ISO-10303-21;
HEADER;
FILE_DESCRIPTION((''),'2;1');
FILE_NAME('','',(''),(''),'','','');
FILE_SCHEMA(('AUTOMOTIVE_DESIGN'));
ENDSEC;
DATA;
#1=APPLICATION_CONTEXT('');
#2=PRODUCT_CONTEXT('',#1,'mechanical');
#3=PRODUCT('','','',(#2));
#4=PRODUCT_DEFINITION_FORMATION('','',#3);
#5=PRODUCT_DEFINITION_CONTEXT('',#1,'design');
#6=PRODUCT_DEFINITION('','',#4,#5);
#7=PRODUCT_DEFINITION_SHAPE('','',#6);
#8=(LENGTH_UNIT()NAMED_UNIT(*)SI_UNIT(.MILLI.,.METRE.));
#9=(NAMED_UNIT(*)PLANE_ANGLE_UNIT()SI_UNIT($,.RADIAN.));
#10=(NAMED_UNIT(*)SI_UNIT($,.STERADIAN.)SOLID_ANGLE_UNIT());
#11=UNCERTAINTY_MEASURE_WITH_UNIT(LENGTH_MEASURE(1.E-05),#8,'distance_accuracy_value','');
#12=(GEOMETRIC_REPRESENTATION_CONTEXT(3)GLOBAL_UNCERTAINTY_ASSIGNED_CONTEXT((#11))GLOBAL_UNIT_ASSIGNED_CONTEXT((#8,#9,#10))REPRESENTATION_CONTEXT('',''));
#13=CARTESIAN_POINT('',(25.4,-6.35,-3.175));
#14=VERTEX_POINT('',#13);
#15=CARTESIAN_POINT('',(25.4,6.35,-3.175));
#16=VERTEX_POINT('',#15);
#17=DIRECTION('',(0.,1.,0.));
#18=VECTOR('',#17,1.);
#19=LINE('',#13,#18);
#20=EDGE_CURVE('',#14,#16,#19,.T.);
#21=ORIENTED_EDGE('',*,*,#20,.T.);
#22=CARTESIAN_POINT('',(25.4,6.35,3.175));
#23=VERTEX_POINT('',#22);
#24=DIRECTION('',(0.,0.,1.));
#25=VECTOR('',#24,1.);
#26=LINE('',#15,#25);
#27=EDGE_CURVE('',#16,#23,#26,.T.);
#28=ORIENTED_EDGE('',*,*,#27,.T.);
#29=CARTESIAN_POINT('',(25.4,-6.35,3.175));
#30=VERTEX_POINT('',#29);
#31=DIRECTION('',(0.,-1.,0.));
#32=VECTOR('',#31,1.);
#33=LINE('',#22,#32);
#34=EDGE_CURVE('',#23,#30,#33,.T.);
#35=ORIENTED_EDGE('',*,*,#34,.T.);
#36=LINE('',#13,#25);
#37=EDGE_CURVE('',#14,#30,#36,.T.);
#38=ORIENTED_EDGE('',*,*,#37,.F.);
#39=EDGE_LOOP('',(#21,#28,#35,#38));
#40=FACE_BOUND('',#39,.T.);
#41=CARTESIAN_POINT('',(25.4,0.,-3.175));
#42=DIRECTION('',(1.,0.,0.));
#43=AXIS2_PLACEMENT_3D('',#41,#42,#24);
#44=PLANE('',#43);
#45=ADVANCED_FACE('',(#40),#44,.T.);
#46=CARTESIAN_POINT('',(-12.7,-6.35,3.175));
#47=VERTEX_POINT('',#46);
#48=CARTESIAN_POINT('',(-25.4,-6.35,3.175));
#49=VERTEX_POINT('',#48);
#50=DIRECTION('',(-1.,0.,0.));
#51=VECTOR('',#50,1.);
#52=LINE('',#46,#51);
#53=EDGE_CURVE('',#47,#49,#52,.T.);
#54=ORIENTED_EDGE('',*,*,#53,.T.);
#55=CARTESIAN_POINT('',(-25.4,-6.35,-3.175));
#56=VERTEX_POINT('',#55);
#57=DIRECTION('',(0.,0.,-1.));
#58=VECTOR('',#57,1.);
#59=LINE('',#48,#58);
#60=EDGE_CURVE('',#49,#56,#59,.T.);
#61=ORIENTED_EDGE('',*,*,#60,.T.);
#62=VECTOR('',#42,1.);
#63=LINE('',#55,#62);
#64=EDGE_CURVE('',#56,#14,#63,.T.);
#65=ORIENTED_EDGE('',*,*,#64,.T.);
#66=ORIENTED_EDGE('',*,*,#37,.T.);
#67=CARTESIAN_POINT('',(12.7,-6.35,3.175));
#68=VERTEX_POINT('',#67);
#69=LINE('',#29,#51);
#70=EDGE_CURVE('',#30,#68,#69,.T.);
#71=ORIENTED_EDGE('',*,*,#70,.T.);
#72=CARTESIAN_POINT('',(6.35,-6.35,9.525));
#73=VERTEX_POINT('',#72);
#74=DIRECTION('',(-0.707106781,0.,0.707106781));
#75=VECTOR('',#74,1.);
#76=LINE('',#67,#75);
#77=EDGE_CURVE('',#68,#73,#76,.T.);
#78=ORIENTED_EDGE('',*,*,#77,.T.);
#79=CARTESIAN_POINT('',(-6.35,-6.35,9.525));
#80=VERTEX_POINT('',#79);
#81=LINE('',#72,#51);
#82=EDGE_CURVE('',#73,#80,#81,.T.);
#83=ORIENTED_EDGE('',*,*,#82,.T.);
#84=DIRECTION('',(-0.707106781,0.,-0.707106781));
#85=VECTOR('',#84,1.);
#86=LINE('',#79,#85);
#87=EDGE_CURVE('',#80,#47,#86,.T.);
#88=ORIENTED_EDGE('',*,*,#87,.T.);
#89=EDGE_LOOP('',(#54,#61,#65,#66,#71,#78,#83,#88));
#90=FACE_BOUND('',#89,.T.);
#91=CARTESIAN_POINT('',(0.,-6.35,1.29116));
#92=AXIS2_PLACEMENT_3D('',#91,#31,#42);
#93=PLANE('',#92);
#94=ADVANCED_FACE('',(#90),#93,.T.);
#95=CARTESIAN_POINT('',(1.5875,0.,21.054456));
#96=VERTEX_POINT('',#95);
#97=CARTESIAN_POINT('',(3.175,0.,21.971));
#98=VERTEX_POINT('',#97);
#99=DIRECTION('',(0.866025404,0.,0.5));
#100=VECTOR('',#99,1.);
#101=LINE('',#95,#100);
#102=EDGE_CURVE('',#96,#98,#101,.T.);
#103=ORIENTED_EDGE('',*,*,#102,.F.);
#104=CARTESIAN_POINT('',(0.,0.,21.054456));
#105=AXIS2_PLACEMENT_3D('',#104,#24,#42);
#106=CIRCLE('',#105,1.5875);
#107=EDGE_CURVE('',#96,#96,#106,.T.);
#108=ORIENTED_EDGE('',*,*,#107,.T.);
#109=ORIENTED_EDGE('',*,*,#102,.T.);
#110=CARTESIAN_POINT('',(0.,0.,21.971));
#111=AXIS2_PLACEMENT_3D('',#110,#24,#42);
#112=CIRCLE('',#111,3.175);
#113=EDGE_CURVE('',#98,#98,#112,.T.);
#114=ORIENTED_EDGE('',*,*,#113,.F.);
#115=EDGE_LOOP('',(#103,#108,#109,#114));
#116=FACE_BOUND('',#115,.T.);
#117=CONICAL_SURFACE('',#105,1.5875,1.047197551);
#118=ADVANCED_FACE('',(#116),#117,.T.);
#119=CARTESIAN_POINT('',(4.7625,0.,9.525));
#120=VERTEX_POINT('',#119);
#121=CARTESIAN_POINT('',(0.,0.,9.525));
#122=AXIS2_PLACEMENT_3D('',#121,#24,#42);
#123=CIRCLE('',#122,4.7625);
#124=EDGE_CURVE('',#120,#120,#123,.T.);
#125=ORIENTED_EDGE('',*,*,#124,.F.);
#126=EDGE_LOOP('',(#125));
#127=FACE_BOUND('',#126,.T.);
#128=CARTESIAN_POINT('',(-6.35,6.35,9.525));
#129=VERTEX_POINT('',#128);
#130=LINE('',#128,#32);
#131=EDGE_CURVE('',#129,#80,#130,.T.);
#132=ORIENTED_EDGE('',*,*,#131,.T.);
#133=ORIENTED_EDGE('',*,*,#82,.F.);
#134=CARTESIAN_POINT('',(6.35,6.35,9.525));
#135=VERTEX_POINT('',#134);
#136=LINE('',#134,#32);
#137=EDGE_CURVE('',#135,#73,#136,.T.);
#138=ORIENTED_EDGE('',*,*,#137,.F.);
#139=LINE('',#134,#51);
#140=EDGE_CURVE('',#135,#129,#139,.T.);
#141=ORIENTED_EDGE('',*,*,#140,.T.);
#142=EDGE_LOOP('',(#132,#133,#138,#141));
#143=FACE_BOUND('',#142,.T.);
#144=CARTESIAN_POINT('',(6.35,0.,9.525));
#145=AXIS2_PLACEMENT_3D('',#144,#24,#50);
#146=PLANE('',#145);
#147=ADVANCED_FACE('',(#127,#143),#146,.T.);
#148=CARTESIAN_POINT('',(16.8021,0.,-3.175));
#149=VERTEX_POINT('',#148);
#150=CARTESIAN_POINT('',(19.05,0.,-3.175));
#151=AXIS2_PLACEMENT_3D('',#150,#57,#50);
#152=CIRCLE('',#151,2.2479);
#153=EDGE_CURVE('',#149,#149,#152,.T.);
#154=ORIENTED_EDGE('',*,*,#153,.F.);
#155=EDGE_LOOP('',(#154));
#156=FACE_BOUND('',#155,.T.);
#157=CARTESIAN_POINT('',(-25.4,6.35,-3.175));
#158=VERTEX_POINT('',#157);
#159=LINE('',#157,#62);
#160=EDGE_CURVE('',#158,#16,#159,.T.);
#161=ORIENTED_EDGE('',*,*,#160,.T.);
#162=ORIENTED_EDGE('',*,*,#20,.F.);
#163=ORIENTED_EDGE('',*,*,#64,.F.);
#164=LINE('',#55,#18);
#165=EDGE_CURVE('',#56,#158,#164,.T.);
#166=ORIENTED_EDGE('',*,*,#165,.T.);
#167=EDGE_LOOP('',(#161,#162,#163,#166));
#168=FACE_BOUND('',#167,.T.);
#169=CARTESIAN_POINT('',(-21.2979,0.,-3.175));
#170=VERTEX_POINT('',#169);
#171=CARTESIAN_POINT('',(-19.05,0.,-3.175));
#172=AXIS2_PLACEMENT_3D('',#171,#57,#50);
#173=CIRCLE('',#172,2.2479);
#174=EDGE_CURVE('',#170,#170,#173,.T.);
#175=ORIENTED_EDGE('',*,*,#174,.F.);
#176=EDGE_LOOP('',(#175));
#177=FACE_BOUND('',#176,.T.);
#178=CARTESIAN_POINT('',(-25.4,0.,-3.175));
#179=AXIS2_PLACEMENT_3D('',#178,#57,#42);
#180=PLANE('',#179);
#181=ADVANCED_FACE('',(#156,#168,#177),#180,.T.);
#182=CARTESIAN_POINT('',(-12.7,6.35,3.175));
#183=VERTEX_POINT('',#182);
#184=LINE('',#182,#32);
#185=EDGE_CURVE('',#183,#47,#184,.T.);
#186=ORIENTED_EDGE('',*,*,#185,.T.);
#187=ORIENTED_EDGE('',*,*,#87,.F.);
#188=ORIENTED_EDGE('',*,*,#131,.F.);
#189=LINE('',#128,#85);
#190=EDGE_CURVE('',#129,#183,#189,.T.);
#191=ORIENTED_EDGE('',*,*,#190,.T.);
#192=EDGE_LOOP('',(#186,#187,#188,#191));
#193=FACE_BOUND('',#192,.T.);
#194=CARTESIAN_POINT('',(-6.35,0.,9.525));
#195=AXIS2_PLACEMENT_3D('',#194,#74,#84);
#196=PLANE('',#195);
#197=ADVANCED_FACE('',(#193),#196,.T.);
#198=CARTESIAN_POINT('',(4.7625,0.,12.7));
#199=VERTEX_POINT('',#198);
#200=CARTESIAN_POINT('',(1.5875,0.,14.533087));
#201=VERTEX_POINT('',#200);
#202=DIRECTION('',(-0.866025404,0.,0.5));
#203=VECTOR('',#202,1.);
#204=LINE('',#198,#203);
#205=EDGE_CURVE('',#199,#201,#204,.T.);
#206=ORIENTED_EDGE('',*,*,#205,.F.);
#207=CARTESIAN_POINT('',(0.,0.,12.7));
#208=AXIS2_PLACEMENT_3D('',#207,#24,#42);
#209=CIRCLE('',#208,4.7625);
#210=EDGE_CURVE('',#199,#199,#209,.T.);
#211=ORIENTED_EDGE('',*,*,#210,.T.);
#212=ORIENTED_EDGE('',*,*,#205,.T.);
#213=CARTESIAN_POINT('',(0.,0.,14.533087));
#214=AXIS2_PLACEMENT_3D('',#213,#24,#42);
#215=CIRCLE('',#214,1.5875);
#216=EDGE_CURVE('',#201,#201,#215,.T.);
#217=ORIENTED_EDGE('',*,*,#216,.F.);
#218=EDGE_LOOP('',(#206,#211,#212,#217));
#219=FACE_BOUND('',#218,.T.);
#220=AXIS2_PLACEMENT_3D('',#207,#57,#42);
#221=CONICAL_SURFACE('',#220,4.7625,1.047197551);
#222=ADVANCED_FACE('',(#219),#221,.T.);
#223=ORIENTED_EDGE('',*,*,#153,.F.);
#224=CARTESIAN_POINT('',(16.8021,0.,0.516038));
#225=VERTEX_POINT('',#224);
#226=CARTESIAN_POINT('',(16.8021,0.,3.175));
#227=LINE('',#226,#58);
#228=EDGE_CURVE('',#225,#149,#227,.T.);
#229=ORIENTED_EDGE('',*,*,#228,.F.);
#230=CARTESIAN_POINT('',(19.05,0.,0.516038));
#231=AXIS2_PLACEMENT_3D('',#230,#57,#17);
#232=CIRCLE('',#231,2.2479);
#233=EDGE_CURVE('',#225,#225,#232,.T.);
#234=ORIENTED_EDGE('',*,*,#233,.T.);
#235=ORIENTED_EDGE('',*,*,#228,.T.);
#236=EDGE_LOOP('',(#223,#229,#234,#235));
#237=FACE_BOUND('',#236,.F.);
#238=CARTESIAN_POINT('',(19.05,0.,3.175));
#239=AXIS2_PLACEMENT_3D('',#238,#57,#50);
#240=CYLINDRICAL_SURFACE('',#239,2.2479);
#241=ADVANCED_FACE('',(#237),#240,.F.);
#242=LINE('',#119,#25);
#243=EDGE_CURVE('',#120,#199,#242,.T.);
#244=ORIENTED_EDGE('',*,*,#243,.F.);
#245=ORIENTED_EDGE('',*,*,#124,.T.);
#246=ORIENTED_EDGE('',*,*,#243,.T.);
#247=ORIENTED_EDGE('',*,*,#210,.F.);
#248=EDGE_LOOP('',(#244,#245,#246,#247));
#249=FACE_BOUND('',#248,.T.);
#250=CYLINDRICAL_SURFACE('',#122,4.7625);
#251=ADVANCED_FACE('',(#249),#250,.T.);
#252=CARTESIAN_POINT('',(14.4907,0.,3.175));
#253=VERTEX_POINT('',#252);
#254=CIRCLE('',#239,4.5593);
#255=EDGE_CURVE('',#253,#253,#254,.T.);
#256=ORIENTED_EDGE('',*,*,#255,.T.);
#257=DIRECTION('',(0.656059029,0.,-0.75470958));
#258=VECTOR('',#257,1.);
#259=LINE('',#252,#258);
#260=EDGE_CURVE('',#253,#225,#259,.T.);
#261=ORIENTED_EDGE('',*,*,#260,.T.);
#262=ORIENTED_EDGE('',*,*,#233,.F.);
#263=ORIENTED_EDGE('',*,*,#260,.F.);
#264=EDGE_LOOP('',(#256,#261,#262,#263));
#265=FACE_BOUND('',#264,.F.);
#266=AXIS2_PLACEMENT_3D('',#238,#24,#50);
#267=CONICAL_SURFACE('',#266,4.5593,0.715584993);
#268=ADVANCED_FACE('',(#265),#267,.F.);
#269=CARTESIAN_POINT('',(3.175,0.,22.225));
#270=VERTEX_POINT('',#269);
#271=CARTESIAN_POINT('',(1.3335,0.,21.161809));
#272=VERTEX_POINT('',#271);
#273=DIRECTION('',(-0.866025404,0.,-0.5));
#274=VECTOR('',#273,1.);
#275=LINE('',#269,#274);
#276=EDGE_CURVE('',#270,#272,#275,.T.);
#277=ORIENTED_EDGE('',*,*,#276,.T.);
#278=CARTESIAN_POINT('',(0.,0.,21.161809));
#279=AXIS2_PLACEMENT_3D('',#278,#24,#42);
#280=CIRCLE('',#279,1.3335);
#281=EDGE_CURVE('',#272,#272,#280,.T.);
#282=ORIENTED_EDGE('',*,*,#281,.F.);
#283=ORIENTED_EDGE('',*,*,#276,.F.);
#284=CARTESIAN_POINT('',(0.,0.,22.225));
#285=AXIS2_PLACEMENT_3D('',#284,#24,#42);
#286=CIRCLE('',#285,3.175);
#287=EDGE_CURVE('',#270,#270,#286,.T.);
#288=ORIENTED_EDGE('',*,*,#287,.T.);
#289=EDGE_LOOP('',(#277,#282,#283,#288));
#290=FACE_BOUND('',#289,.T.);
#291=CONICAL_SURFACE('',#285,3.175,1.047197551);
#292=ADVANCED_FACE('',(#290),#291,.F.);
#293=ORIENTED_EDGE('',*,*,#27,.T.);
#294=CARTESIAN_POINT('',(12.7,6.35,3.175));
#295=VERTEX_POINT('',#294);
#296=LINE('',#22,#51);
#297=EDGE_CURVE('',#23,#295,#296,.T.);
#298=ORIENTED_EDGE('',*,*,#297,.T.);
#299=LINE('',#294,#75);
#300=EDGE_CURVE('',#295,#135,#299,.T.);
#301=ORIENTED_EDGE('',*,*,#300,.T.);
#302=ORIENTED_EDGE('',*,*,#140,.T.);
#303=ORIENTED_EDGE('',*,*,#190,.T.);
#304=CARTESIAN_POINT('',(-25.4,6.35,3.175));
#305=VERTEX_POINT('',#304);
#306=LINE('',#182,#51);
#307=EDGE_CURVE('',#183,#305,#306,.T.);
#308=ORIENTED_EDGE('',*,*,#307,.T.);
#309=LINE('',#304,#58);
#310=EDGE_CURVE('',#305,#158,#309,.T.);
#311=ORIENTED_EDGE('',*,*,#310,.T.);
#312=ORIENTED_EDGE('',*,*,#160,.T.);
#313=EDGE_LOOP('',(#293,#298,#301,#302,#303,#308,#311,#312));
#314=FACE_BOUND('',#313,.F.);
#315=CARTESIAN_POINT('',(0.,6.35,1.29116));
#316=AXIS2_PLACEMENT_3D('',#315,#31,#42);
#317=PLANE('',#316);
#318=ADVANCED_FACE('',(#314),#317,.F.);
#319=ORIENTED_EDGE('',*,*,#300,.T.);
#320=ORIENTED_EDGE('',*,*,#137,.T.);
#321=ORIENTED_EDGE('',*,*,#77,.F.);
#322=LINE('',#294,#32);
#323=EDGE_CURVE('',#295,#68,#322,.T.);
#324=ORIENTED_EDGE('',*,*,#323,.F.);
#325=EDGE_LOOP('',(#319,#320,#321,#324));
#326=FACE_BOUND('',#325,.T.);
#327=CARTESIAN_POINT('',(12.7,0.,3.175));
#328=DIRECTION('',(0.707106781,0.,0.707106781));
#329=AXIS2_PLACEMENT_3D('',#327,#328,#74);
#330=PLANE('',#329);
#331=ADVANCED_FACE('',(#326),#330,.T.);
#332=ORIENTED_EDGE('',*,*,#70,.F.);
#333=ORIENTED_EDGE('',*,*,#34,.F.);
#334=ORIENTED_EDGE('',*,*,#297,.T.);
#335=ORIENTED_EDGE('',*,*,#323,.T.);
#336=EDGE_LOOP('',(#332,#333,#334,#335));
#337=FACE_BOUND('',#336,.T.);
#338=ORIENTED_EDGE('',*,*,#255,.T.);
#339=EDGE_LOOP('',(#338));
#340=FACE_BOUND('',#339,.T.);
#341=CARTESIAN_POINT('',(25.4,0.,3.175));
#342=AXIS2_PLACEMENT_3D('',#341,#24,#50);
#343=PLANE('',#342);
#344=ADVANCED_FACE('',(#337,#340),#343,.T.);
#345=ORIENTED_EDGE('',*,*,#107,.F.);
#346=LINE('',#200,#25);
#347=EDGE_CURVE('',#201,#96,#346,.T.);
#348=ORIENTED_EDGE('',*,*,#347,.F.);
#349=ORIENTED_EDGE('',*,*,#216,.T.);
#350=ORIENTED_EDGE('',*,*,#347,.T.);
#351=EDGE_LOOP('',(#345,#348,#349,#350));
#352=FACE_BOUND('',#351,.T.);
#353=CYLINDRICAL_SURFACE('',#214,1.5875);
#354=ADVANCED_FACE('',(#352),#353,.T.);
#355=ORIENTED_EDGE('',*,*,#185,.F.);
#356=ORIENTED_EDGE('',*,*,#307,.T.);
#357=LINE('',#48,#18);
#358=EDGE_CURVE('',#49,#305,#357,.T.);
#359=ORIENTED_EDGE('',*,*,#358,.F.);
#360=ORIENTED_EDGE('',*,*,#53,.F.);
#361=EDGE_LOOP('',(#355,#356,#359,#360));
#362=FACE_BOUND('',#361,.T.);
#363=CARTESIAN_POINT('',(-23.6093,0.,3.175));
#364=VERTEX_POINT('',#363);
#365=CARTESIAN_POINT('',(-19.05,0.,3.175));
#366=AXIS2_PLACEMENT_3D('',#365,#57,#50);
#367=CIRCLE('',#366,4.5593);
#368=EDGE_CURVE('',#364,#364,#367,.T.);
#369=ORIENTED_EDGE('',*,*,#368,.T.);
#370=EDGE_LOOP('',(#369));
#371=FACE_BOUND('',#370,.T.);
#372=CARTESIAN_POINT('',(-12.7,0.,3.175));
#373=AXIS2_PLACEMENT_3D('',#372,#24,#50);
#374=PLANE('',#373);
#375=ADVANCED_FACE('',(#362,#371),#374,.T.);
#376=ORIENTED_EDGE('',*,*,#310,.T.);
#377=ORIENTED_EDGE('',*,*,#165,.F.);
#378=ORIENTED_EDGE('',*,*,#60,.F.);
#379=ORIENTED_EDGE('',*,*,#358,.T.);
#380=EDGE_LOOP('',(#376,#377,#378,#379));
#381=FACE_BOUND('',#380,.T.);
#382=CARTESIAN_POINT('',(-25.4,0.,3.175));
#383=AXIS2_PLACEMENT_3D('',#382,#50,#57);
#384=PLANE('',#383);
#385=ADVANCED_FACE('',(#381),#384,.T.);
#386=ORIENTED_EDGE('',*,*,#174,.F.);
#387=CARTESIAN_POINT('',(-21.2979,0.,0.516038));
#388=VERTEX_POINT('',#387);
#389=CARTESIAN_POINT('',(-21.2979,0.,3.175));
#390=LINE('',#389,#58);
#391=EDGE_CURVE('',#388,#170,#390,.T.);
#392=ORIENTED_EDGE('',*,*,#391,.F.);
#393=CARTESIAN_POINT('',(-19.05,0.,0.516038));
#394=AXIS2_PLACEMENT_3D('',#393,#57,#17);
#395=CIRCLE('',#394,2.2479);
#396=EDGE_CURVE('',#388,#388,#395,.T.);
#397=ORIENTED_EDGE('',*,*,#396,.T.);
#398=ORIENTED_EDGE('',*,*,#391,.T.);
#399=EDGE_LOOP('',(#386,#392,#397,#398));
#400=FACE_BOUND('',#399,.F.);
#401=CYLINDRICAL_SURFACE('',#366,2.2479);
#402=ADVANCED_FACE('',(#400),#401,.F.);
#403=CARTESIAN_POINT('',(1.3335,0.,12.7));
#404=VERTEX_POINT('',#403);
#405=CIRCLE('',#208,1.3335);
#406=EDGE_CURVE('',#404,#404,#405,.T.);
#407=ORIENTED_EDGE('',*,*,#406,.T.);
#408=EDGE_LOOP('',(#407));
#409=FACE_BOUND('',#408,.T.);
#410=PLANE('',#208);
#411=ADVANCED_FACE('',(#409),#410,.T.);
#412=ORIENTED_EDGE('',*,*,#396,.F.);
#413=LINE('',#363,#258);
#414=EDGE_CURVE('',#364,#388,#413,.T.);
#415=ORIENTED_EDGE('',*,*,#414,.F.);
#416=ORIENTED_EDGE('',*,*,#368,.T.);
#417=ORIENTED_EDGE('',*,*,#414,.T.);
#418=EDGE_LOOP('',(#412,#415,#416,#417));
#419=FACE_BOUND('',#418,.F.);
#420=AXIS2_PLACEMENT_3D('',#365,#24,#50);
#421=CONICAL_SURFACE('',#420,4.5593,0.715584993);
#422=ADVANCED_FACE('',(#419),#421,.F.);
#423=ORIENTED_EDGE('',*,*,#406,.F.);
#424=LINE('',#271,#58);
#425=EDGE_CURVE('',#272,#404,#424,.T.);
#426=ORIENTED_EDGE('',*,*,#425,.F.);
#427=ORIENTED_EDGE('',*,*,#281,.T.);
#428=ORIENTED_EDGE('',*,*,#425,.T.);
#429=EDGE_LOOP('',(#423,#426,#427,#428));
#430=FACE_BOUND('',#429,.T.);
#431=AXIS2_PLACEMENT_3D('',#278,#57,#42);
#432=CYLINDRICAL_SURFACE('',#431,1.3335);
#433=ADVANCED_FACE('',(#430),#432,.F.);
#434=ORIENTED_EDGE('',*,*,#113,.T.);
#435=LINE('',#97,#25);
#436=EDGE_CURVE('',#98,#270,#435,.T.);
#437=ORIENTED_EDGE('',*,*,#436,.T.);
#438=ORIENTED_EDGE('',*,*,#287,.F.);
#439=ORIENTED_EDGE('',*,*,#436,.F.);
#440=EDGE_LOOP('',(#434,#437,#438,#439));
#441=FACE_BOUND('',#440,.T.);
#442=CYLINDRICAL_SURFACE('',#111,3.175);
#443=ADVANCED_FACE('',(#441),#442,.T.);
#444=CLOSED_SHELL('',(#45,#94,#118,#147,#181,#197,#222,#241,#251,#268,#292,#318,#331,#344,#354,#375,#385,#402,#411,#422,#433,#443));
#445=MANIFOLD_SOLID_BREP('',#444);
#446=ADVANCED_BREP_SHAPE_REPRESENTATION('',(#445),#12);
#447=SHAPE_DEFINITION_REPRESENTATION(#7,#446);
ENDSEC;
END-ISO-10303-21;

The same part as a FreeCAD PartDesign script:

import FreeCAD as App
import Part
import Sketcher

V = App.Vector
Q = App.Units.Quantity


def add_polygon(sketch, points):
    """Adds a closed chain of lines whose ends are joined by coincident constraints."""
    first, n = sketch.GeometryCount, len(points)
    for a, b in zip(points, points[1:] + points[:1]):
        sketch.addGeometry(Part.LineSegment(App.Vector(*a, 0), App.Vector(*b, 0)), False)
    for i in range(n):
        sketch.addConstraint(Sketcher.Constraint("Coincident", first + i, 2, first + (i + 1) % n, 1))

doc = App.newDocument("Part")
params = doc.addObject("Spreadsheet::Sheet", "Params")
for row, (alias, value) in enumerate([
    ("sketch1_width", "2 in"),
    ("sketch1_width2", "0.5 in"),
    ("sketch1_height", "0.25 in"),
    ("pad1_length", "0.5 in"),
    ("sketch2_diameter", "0.177 in"),
    ("hole_diameter", "0.177 in"),
    ("hole_csink_diameter", "0.359 in"),
    ("sketch3_height", "0.01 in"),
    ("sketch3_width", "0.1875 in"),
    ("sketch3_height2", "0.125 in"),
    ("revolution_angle", "360 deg"),
], start=1):
    params.set(f"A{row}", alias)
    params.set(f"B{row}", "=" + value)
    params.setAlias(f"B{row}", alias)

body = doc.addObject("PartDesign::Body", "Body")

# Sketch on XZ plane
sketch1 = body.newObject("Sketcher::SketchObject", "Sketch")
sketch1.AttachmentSupport = (doc.getObject("XZ_Plane"), [""])
sketch1.MapMode = "FlatFace"
add_polygon(sketch1, [(25, -3), (25, 3), (13, 3), (6, 10), (-6, 10), (-13, 3), (-25, 3), (-25, -3)])  # lines 0-7
sketch1.addConstraint(Sketcher.Constraint("Vertical", 0))
sketch1.addConstraint(Sketcher.Constraint("Horizontal", 1))
sketch1.addConstraint(Sketcher.Constraint("Horizontal", 3))
sketch1.addConstraint(Sketcher.Constraint("Horizontal", 5))
sketch1.addConstraint(Sketcher.Constraint("Vertical", 6))
sketch1.addConstraint(Sketcher.Constraint("Horizontal", 7))
sketch1.addConstraint(Sketcher.Constraint("Symmetric", 0, 2, 6, 2, -1, 1))
sketch1.addConstraint(Sketcher.Constraint("Symmetric", 1, 2, 4, 2, -2))
sketch1.addConstraint(Sketcher.Constraint("Perpendicular", 2, 4))
sketch1.addConstraint(Sketcher.Constraint("Equal", 1, 3))
sketch1.addConstraint(Sketcher.Constraint("Equal", 2, 4))
sketch1.addConstraint(Sketcher.Constraint("DistanceX", 7, 1, 7, 2, Q("2 in")))
sketch1.addConstraint(Sketcher.Constraint("DistanceX", 1, 2, 1, 1, Q("0.5 in")))
sketch1.addConstraint(Sketcher.Constraint("DistanceY", 0, 1, 0, 2, Q("0.25 in")))
sketch1.setExpression("Constraints[19]", "Params.sketch1_width")
sketch1.setExpression("Constraints[20]", "Params.sketch1_width2")
sketch1.setExpression("Constraints[21]", "Params.sketch1_height")
pad1 = body.newObject("PartDesign::Pad", "Pad")
pad1.Profile = sketch1
pad1.setExpression("Length", "Params.pad1_length")
pad1.Midplane = True

# Sketch on XY plane
sketch2 = body.newObject("Sketcher::SketchObject", "Sketch001")
sketch2.AttachmentSupport = (doc.getObject("XY_Plane"), [""])
sketch2.MapMode = "FlatFace"
sketch2.AttachmentOffset = App.Placement(V(0, 0, 0.125 * 25.4), App.Rotation())
sketch2.addGeometry(Part.Circle(V(-19.1, 0, 0), V(0, 0, 1), 2.2), False)
sketch2.addGeometry(Part.Circle(V(19.1, 0, 0), V(0, 0, 1), 2.2), False)
sketch2.addConstraint(Sketcher.Constraint("Equal", 0, 1))
sketch2.addConstraint(Sketcher.Constraint("Symmetric", 0, 3, 1, 3, -1, 1))
sketch2.addConstraint(Sketcher.Constraint("PointOnObject", 0, 3, -1))
sketch2.addConstraint(Sketcher.Constraint("Diameter", 0, Q("0.177 in")))
sketch2.addConstraint(Sketcher.Constraint("DistanceX", 0, 3, 1, 3, Q("1.5 in")))
sketch2.setExpression("Constraints[3]", "Params.sketch2_diameter")
doc.recompute()
hole = body.newObject("PartDesign::Hole", "Hole")
hole.Profile = sketch2
hole.ThreadType = "None"
hole.setExpression("Diameter", "Params.hole_diameter")
hole.DepthType = "ThroughAll"
hole.HoleCutType = "Countersink"
hole.setExpression("HoleCutDiameter", "Params.hole_csink_diameter")
hole.HoleCutCountersinkAngle = 82

# Sketch on XZ plane
sketch3 = body.newObject("Sketcher::SketchObject", "Sketch002")
sketch3.AttachmentSupport = (doc.getObject("XZ_Plane"), [""])
sketch3.MapMode = "FlatFace"
add_polygon(sketch3, [(0, 12.7), (0, 9.53), (4.76, 9.53), (4.76, 12.7), (1.59, 14.53), (1.59, 21.05), (3.17, 21.97), (3.17, 22.23), (1.33, 21.16), (1.33, 12.7)])  # lines 0-9
sketch3.addConstraint(Sketcher.Constraint("Vertical", 0))
sketch3.addConstraint(Sketcher.Constraint("Horizontal", 1))
sketch3.addConstraint(Sketcher.Constraint("Vertical", 2))
sketch3.addConstraint(Sketcher.Constraint("Vertical", 4))
sketch3.addConstraint(Sketcher.Constraint("Vertical", 6))
sketch3.addConstraint(Sketcher.Constraint("Vertical", 8))
sketch3.addConstraint(Sketcher.Constraint("Horizontal", 9))
sketch3.addConstraint(Sketcher.Constraint("PointOnObject", 0, 2, -2))
sketch3.addConstraint(Sketcher.Constraint("Parallel", 5, 7))
sketch3.addConstraint(Sketcher.Constraint("Horizontal", 2, 2, 8, 2))
sketch3.addConstraint(Sketcher.Constraint("Angle", 3, Q("150 deg")))
sketch3.addConstraint(Sketcher.Constraint("Angle", 5, Q("30 deg")))
sketch3.addConstraint(Sketcher.Constraint("DistanceY", 6, 1, 6, 2, Q("0.01 in")))
sketch3.addConstraint(Sketcher.Constraint("DistanceY", -1, 1, 2, 2, Q("0.5 in")))
sketch3.addConstraint(Sketcher.Constraint("DistanceY", 1, 2, 6, 2, Q("0.5 in")))
sketch3.addConstraint(Sketcher.Constraint("DistanceX", 1, 1, 1, 2, Q("0.1875 in")))
sketch3.addConstraint(Sketcher.Constraint("DistanceY", 0, 2, 0, 1, Q("0.125 in")))
sketch3.addConstraint(Sketcher.Constraint("DistanceX", 7, 2, 4, 2, Q("0.01 in")))
sketch3.addConstraint(Sketcher.Constraint("DistanceX", 9, 2, 9, 1, Q("0.0525 in")))
sketch3.addConstraint(Sketcher.Constraint("DistanceX", -1, 1, 5, 2, Q("0.125 in")))
sketch3.setExpression("Constraints[22]", "Params.sketch3_height")
sketch3.setExpression("Constraints[25]", "Params.sketch3_width")
sketch3.setExpression("Constraints[26]", "Params.sketch3_height2")
revolution = body.newObject("PartDesign::Revolution", "Revolution")
revolution.Profile = sketch3
revolution.ReferenceAxis = (sketch3, ["V_Axis"])
revolution.setExpression("Angle", "Params.revolution_angle")

doc.recompute()
